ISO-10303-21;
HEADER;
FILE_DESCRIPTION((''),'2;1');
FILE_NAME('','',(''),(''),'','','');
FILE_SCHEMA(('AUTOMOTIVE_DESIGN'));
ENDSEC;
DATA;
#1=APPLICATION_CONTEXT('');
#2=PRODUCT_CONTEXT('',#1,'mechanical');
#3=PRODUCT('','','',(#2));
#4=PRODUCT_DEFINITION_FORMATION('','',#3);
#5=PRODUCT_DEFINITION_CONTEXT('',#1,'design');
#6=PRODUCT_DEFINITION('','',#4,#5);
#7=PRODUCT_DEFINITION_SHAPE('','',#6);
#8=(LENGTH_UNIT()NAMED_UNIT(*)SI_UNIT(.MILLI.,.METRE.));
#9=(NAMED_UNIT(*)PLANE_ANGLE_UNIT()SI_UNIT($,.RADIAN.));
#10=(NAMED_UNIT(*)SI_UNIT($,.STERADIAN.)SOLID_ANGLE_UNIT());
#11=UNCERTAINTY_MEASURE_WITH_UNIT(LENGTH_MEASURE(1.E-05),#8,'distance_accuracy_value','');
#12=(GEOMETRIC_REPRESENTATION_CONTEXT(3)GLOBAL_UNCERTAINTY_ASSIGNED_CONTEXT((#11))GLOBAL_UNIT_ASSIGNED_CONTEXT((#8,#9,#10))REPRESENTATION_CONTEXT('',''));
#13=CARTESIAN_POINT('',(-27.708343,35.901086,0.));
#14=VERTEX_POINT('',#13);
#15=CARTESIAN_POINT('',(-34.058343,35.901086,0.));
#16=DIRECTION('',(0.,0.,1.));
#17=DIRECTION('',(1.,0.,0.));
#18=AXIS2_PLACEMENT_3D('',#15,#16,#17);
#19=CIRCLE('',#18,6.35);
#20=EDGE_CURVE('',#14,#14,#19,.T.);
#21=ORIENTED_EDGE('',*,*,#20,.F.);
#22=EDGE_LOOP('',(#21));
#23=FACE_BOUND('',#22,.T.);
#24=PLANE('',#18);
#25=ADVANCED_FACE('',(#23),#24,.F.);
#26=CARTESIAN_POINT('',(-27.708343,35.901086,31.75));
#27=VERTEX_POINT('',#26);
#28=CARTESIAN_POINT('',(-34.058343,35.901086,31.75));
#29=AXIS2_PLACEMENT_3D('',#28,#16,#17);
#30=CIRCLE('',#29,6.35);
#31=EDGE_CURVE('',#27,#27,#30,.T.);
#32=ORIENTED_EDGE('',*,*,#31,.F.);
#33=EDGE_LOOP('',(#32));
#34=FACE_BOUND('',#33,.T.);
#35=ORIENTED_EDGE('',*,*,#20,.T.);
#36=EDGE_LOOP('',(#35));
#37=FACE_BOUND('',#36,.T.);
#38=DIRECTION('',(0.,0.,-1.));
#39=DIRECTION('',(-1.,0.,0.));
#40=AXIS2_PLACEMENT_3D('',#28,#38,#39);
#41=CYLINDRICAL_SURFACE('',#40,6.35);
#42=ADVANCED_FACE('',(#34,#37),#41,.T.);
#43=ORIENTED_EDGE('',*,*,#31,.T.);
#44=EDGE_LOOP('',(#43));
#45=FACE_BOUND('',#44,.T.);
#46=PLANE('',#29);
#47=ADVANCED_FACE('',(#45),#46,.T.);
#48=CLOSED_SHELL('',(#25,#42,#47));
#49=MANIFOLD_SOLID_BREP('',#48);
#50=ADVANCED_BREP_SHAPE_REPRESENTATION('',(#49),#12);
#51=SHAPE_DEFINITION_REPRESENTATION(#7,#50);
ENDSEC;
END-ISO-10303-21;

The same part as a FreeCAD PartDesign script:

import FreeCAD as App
import Part
import Sketcher
from FreeCAD import Vector
Q = App.Units.Quantity

doc = App.newDocument("Part")
body = doc.addObject("PartDesign::Body", "Body")

# Sketch on XY plane
sketch1 = body.newObject("Sketcher::SketchObject", "Sketch")
sketch1.AttachmentSupport = (doc.getObject("XY_Plane"), [""])
sketch1.MapMode = "FlatFace"
sketch1.addGeometry(Part.Circle(Vector(-34, 36, 0), Vector(0, 0, 1), 6), False)
sketch1.addConstraint([
    Sketcher.Constraint("Diameter", 0, Q("0.5 in")),
    Sketcher.Constraint("DistanceX", 0, 3, -1, 1, Q("34.058343 mm")),
    Sketcher.Constraint("DistanceY", -1, 1, 0, 3, Q("35.901086 mm")),
])
pad1 = body.newObject("PartDesign::Pad", "Pad")
pad1.Profile = sketch1
pad1.Length = Q("1.25 in")

doc.recompute()
